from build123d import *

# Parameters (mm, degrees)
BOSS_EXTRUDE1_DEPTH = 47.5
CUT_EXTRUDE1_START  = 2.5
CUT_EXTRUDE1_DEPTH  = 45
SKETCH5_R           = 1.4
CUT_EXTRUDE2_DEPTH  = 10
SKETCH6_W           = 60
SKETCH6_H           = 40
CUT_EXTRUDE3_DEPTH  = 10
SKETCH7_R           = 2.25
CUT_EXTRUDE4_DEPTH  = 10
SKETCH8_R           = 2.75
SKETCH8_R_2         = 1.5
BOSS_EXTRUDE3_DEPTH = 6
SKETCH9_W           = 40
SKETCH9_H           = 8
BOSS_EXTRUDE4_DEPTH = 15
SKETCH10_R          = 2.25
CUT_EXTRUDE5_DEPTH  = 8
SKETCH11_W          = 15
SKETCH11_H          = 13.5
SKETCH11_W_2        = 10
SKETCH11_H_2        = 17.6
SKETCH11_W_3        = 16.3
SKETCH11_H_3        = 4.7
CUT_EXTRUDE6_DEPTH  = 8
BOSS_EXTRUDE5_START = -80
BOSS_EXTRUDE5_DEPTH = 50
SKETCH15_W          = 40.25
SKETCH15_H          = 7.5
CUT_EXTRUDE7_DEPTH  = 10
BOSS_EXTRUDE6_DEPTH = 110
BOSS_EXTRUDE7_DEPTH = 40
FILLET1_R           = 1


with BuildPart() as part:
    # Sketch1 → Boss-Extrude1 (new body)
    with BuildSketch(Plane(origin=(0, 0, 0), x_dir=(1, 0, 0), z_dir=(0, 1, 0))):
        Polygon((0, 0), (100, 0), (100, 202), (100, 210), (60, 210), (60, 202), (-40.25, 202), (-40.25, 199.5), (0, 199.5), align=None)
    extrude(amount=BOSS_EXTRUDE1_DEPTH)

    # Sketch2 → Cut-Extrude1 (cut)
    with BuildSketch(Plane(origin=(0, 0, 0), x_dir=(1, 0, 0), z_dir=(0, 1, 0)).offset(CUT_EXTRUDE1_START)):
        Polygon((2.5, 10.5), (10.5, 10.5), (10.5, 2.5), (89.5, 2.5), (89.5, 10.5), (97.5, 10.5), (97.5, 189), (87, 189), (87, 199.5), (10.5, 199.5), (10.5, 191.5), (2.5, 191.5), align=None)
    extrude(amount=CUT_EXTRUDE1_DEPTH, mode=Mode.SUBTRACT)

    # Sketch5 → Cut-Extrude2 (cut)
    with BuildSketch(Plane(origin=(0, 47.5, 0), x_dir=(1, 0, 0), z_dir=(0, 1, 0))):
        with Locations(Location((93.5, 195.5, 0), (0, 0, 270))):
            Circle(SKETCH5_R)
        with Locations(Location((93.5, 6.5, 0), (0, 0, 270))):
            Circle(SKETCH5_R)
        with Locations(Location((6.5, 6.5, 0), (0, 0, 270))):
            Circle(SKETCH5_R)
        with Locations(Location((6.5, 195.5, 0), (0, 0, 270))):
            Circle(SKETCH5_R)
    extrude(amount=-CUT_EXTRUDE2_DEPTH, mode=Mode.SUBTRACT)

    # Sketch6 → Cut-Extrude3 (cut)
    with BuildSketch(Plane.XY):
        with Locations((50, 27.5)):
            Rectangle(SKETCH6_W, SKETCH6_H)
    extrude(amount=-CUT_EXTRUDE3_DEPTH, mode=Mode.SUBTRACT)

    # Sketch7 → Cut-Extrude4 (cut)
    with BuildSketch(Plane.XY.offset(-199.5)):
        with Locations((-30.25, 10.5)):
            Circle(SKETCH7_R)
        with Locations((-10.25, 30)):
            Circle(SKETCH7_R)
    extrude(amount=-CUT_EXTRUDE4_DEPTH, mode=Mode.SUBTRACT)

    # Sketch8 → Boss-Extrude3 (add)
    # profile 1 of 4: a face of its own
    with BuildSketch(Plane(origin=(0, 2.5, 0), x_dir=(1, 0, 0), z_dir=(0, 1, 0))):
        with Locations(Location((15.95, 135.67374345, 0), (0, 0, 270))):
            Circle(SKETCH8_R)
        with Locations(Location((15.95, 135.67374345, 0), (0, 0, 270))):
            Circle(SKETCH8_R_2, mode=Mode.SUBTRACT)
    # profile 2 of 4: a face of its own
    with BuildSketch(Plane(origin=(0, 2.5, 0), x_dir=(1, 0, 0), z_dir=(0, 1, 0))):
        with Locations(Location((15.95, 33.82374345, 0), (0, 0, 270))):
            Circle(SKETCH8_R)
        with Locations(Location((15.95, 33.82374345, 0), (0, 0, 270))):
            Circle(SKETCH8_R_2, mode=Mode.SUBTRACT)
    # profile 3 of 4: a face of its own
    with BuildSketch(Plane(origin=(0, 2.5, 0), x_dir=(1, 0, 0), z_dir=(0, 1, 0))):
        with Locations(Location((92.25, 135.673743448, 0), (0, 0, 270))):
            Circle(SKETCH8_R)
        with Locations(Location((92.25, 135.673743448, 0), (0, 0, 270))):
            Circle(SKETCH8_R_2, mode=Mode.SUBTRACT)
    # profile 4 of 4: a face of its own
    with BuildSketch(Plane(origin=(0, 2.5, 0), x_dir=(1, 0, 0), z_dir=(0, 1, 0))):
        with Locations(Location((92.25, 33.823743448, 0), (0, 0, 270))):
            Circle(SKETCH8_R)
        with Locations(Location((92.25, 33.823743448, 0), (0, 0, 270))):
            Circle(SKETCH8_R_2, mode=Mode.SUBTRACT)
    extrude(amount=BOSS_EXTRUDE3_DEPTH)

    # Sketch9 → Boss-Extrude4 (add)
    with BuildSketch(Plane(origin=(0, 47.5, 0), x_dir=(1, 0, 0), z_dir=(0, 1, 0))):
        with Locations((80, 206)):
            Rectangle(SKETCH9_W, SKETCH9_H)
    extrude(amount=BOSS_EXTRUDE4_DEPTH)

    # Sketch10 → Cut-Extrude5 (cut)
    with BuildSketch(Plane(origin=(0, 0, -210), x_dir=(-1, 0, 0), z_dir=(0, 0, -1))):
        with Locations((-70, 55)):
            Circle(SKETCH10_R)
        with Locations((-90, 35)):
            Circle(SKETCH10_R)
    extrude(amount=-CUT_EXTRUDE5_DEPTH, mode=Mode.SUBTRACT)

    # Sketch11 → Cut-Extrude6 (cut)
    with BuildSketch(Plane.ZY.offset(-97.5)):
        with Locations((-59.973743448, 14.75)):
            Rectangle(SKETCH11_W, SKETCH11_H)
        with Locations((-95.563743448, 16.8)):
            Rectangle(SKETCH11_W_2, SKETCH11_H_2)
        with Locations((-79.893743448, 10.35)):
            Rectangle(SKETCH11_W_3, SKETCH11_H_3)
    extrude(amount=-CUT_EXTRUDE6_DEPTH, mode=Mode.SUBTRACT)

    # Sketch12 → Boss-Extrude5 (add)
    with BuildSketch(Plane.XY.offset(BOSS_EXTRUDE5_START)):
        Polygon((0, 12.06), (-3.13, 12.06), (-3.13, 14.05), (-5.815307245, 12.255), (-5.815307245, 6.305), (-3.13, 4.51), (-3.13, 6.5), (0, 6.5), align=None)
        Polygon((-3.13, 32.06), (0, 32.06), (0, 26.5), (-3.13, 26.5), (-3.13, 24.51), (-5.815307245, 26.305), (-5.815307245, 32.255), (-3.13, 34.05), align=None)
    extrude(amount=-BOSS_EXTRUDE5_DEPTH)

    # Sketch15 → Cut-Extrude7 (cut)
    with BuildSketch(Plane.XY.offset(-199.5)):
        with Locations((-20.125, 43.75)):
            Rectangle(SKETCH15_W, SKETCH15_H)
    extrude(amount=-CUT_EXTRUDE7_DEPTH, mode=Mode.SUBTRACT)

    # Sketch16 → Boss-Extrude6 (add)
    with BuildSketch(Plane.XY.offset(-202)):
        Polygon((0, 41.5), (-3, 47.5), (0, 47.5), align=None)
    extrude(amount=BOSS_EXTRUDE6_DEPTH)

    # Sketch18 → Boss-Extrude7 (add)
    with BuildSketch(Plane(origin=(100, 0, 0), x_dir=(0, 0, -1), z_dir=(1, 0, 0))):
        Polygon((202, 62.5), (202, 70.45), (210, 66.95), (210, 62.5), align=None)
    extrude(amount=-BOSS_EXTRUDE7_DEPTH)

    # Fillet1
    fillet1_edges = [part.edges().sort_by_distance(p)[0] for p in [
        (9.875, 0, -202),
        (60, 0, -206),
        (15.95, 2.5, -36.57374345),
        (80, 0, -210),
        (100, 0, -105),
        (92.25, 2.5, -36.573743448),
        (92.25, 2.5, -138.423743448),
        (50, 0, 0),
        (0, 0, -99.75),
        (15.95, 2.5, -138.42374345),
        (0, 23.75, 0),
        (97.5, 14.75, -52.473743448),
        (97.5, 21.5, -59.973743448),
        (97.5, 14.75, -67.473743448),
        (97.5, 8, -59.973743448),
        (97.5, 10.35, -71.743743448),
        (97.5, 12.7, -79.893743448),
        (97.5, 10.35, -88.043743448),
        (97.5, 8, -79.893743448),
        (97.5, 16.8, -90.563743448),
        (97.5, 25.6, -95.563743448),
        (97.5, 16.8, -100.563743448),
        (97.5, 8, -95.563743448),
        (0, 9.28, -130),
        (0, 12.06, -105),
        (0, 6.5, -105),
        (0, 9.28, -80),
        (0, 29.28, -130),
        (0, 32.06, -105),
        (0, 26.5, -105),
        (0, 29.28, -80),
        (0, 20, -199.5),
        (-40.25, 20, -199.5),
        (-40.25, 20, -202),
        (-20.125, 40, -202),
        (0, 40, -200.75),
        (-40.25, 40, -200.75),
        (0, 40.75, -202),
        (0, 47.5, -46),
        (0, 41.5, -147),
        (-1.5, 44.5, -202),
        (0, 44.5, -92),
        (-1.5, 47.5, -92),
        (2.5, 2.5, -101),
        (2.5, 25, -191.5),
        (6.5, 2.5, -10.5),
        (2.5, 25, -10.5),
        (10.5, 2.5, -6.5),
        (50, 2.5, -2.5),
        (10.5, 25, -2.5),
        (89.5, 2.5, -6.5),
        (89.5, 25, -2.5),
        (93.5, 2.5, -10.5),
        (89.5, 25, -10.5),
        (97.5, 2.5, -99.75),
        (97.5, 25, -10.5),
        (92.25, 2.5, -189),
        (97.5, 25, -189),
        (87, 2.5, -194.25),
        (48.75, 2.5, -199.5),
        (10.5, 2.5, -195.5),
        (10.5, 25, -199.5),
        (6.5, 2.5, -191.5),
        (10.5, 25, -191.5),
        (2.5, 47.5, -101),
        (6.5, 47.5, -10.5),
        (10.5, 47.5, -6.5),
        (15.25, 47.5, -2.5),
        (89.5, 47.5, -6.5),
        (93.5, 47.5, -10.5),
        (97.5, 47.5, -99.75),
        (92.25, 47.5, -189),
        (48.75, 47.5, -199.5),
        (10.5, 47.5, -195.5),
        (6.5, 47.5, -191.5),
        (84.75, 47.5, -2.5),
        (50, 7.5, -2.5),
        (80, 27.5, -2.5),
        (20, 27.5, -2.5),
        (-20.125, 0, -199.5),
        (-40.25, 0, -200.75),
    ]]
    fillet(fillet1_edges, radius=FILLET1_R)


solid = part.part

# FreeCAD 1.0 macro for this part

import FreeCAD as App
import Part
import Sketcher
from FreeCAD import Vector
Q = App.Units.Quantity


def edges_at(feature, points):
    """Names of the edges that pass closest to the given points."""
    edges = feature.Shape.Edges
    near = lambda p: min(range(len(edges)), key=lambda i: edges[i].distToShape(Part.Vertex(*p))[0])
    return sorted({f"Edge{near(p) + 1}" for p in points})

doc = App.newDocument("Part")
body = doc.addObject("PartDesign::Body", "Body")

sketch1 = doc.addObject("Sketcher::SketchObject", "Sketch")
body.addObject(sketch1)
sketch1.AttachmentSupport = (doc.XZ_Plane, [""])
sketch1.MapMode = "FlatFace"
sketch1.addGeometry(Part.LineSegment(Vector(0, 0, 0), Vector(100, 0, 0)), False)
sketch1.addGeometry(Part.LineSegment(Vector(100, 0, 0), Vector(100, -210, 0)), False)
sketch1.addGeometry(Part.LineSegment(Vector(100, -210, 0), Vector(60, -210, 0)), False)
sketch1.addGeometry(Part.LineSegment(Vector(60, -210, 0), Vector(60, -202, 0)), False)
sketch1.addGeometry(Part.LineSegment(Vector(60, -202, 0), Vector(-40.2, -202, 0)), False)
sketch1.addGeometry(Part.LineSegment(Vector(-40.2, -202, 0), Vector(-40.2, -199.5, 0)), False)
sketch1.addGeometry(Part.LineSegment(Vector(-40.2, -199.5, 0), Vector(0, -199.5, 0)), False)
sketch1.addGeometry(Part.LineSegment(Vector(0, -199.5, 0), Vector(0, 0, 0)), False)
sketch1.addConstraint(Sketcher.Constraint("Coincident", 0, 2, 1, 1))
sketch1.addConstraint(Sketcher.Constraint("Coincident", 1, 2, 2, 1))
sketch1.addConstraint(Sketcher.Constraint("Coincident", 2, 2, 3, 1))
sketch1.addConstraint(Sketcher.Constraint("Coincident", 3, 2, 4, 1))
sketch1.addConstraint(Sketcher.Constraint("Coincident", 4, 2, 5, 1))
sketch1.addConstraint(Sketcher.Constraint("Coincident", 5, 2, 6, 1))
sketch1.addConstraint(Sketcher.Constraint("Coincident", 6, 2, 7, 1))
sketch1.addConstraint(Sketcher.Constraint("Coincident", 7, 2, 0, 1))
sketch1.addConstraint(Sketcher.Constraint("Horizontal", 0))
sketch1.addConstraint(Sketcher.Constraint("Vertical", 1))
sketch1.addConstraint(Sketcher.Constraint("Horizontal", 2))
sketch1.addConstraint(Sketcher.Constraint("Vertical", 3))
sketch1.addConstraint(Sketcher.Constraint("Horizontal", 4))
sketch1.addConstraint(Sketcher.Constraint("Vertical", 5))
sketch1.addConstraint(Sketcher.Constraint("Horizontal", 6))
sketch1.addConstraint(Sketcher.Constraint("Vertical", 7))
sketch1.addConstraint(Sketcher.Constraint("Coincident", 7, 2, -1, 1))
sketch1.addConstraint(Sketcher.Constraint("DistanceX", 0, 1, 0, 2, Q("100 mm")))
sketch1.addConstraint(Sketcher.Constraint("DistanceX", 2, 2, 2, 1, Q("40 mm")))
sketch1.addConstraint(Sketcher.Constraint("DistanceY", 1, 2, 1, 1, Q("210 mm")))
sketch1.addConstraint(Sketcher.Constraint("DistanceY", 3, 1, 3, 2, Q("8 mm")))
sketch1.addConstraint(Sketcher.Constraint("DistanceY", 5, 1, 5, 2, Q("2.5 mm")))
sketch1.addConstraint(Sketcher.Constraint("DistanceX", 4, 2, 4, 1, Q("100.25 mm")))
pad1 = doc.addObject("PartDesign::Pad", "Pad")
body.addObject(pad1)
pad1.Profile = sketch1
pad1.Length = 47.5
pad1.Reversed = True

sketch2 = doc.addObject("Sketcher::SketchObject", "Sketch001")
body.addObject(sketch2)
sketch2.AttachmentSupport = (doc.XZ_Plane, [""])
sketch2.MapMode = "FlatFace"
sketch2.AttachmentOffset = App.Placement(Vector(0, 0, -2.5), App.Rotation())
sketch2.addGeometry(Part.LineSegment(Vector(2, -10, 0), Vector(10, -10, 0)), False)
sketch2.addGeometry(Part.LineSegment(Vector(10, -10, 0), Vector(10, -2, 0)), False)
sketch2.addGeometry(Part.LineSegment(Vector(10, -2, 0), Vector(90, -2, 0)), False)
sketch2.addGeometry(Part.LineSegment(Vector(90, -2, 0), Vector(90, -10, 0)), False)
sketch2.addGeometry(Part.LineSegment(Vector(90, -10, 0), Vector(98, -10, 0)), False)
sketch2.addGeometry(Part.LineSegment(Vector(98, -10, 0), Vector(98, -189, 0)), False)
sketch2.addGeometry(Part.LineSegment(Vector(98, -189, 0), Vector(87, -189, 0)), False)
sketch2.addGeometry(Part.LineSegment(Vector(87, -189, 0), Vector(87, -200, 0)), False)
sketch2.addGeometry(Part.LineSegment(Vector(87, -200, 0), Vector(10, -200, 0)), False)
sketch2.addGeometry(Part.LineSegment(Vector(10, -200, 0), Vector(10, -192, 0)), False)
sketch2.addGeometry(Part.LineSegment(Vector(10, -192, 0), Vector(2, -192, 0)), False)
sketch2.addGeometry(Part.LineSegment(Vector(2, -192, 0), Vector(2, -10, 0)), False)
sketch2.addConstraint(Sketcher.Constraint("Coincident", 0, 2, 1, 1))
sketch2.addConstraint(Sketcher.Constraint("Coincident", 1, 2, 2, 1))
sketch2.addConstraint(Sketcher.Constraint("Coincident", 2, 2, 3, 1))
sketch2.addConstraint(Sketcher.Constraint("Coincident", 3, 2, 4, 1))
sketch2.addConstraint(Sketcher.Constraint("Coincident", 4, 2, 5, 1))
sketch2.addConstraint(Sketcher.Constraint("Coincident", 5, 2, 6, 1))
sketch2.addConstraint(Sketcher.Constraint("Coincident", 6, 2, 7, 1))
sketch2.addConstraint(Sketcher.Constraint("Coincident", 7, 2, 8, 1))
sketch2.addConstraint(Sketcher.Constraint("Coincident", 8, 2, 9, 1))
sketch2.addConstraint(Sketcher.Constraint("Coincident", 9, 2, 10, 1))
sketch2.addConstraint(Sketcher.Constraint("Coincident", 10, 2, 11, 1))
sketch2.addConstraint(Sketcher.Constraint("Coincident", 11, 2, 0, 1))
sketch2.addConstraint(Sketcher.Constraint("Horizontal", 0))
sketch2.addConstraint(Sketcher.Constraint("Vertical", 1))
sketch2.addConstraint(Sketcher.Constraint("Horizontal", 2))
sketch2.addConstraint(Sketcher.Constraint("Vertical", 3))
sketch2.addConstraint(Sketcher.Constraint("Horizontal", 4))
sketch2.addConstraint(Sketcher.Constraint("Vertical", 5))
sketch2.addConstraint(Sketcher.Constraint("Horizontal", 6))
sketch2.addConstraint(Sketcher.Constraint("Vertical", 7))
sketch2.addConstraint(Sketcher.Constraint("Horizontal", 8))
sketch2.addConstraint(Sketcher.Constraint("Vertical", 9))
sketch2.addConstraint(Sketcher.Constraint("Horizontal", 10))
sketch2.addConstraint(Sketcher.Constraint("Vertical", 11))
sketch2.addConstraint(Sketcher.Constraint("Horizontal", 0, 2, 3, 2))
sketch2.addConstraint(Sketcher.Constraint("Vertical", 1, 2, 8, 2))
sketch2.addConstraint(Sketcher.Constraint("Equal", 0, 4))
sketch2.addConstraint(Sketcher.Constraint("Equal", 10, 1))
sketch2.addConstraint(Sketcher.Constraint("Equal", 6, 7))
sketch2.addConstraint(Sketcher.Constraint("Equal", 3, 9))
sketch2.addConstraint(Sketcher.Constraint("DistanceX", 0, 1, 0, 2, Q("8 mm")))
sketch2.addConstraint(Sketcher.Constraint("DistanceX", 2, 1, 2, 2, Q("79 mm")))
sketch2.addConstraint(Sketcher.Constraint("DistanceY", 11, 1, 11, 2, Q("181 mm")))
sketch2.addConstraint(Sketcher.Constraint("DistanceX", 6, 2, 6, 1, Q("10.5 mm")))
sketch2.addConstraint(Sketcher.Constraint("DistanceY", 5, 2, -1, 1, Q("189 mm")))
sketch2.addConstraint(Sketcher.Constraint("DistanceX", -1, 1, 6, 2, Q("87 mm")))
pocket1 = doc.addObject("PartDesign::Pocket", "Pocket")
body.addObject(pocket1)
pocket1.Profile = sketch2
pocket1.Length = 45

sketch3 = doc.addObject("Sketcher::SketchObject", "Sketch002")
body.addObject(sketch3)
sketch3.AttachmentSupport = (doc.XZ_Plane, [""])
sketch3.MapMode = "FlatFace"
sketch3.AttachmentOffset = App.Placement(Vector(0, 0, -47.5), App.Rotation())
sketch3.addGeometry(Part.Circle(Vector(93.5, -195.5, 0), Vector(0, 0, 1), 1.4), False)
sketch3.addGeometry(Part.Circle(Vector(93.5, -6.5, 0), Vector(0, 0, 1), 1.4), False)
sketch3.addGeometry(Part.Circle(Vector(6.5, -6.5, 0), Vector(0, 0, 1), 1.4), False)
sketch3.addGeometry(Part.Circle(Vector(6.5, -195.5, 0), Vector(0, 0, 1), 1.4), False)
sketch3.addConstraint(Sketcher.Constraint("Equal", 0, 1))
sketch3.addConstraint(Sketcher.Constraint("Equal", 1, 2))
sketch3.addConstraint(Sketcher.Constraint("Equal", 2, 3))
sketch3.addConstraint(Sketcher.Constraint("Horizontal", 1, 3, 2, 3))
sketch3.addConstraint(Sketcher.Constraint("Horizontal", 0, 3, 3, 3))
sketch3.addConstraint(Sketcher.Constraint("Vertical", 0, 3, 1, 3))
sketch3.addConstraint(Sketcher.Constraint("Vertical", 2, 3, 3, 3))
sketch3.addConstraint(Sketcher.Constraint("Diameter", 0, Q("2.8 mm")))
sketch3.addConstraint(Sketcher.Constraint("DistanceY", 0, 3, 1, 3, Q("189 mm")))
sketch3.addConstraint(Sketcher.Constraint("DistanceX", 2, 3, 1, 3, Q("87 mm")))
sketch3.addConstraint(Sketcher.Constraint("DistanceX", -1, 1, 0, 3, Q("93.5 mm")))
sketch3.addConstraint(Sketcher.Constraint("DistanceY", 0, 3, -1, 1, Q("195.5 mm")))
pocket2 = doc.addObject("PartDesign::Pocket", "Pocket001")
body.addObject(pocket2)
pocket2.Profile = sketch3
pocket2.Length = 10
pocket2.Reversed = True

sketch4 = doc.addObject("Sketcher::SketchObject", "Sketch003")
body.addObject(sketch4)
sketch4.AttachmentSupport = (doc.XY_Plane, [""])
sketch4.MapMode = "FlatFace"
sketch4.addGeometry(Part.LineSegment(Vector(20, 48, 0), Vector(20, 8, 0)), False)
sketch4.addGeometry(Part.LineSegment(Vector(20, 8, 0), Vector(80, 8, 0)), False)
sketch4.addGeometry(Part.LineSegment(Vector(80, 8, 0), Vector(80, 48, 0)), False)
sketch4.addGeometry(Part.LineSegment(Vector(80, 48, 0), Vector(20, 48, 0)), False)
sketch4.addConstraint(Sketcher.Constraint("Coincident", 0, 2, 1, 1))
sketch4.addConstraint(Sketcher.Constraint("Coincident", 1, 2, 2, 1))
sketch4.addConstraint(Sketcher.Constraint("Coincident", 2, 2, 3, 1))
sketch4.addConstraint(Sketcher.Constraint("Coincident", 3, 2, 0, 1))
sketch4.addConstraint(Sketcher.Constraint("Vertical", 0))
sketch4.addConstraint(Sketcher.Constraint("Horizontal", 1))
sketch4.addConstraint(Sketcher.Constraint("Vertical", 2))
sketch4.addConstraint(Sketcher.Constraint("Horizontal", 3))
sketch4.addConstraint(Sketcher.Constraint("DistanceX", 1, 1, 1, 2, Q("60 mm")))
sketch4.addConstraint(Sketcher.Constraint("DistanceY", 0, 2, 0, 1, Q("40 mm")))
sketch4.addConstraint(Sketcher.Constraint("DistanceX", -1, 1, 0, 2, Q("20 mm")))
sketch4.addConstraint(Sketcher.Constraint("DistanceY", -1, 1, 0, 2, Q("7.5 mm")))
pocket3 = doc.addObject("PartDesign::Pocket", "Pocket002")
body.addObject(pocket3)
pocket3.Profile = sketch4
pocket3.Length = 10

sketch5 = doc.addObject("Sketcher::SketchObject", "Sketch004")
body.addObject(sketch5)
sketch5.AttachmentSupport = (doc.XY_Plane, [""])
sketch5.MapMode = "FlatFace"
sketch5.AttachmentOffset = App.Placement(Vector(0, 0, -199.5), App.Rotation())
sketch5.addGeometry(Part.Circle(Vector(-30.2, 10.5, 0), Vector(0, 0, 1), 2.2), False)
sketch5.addGeometry(Part.Circle(Vector(-10.2, 30, 0), Vector(0, 0, 1), 2.2), False)
sketch5.addConstraint(Sketcher.Constraint("Equal", 0, 1))
sketch5.addConstraint(Sketcher.Constraint("Diameter", 0, Q("4.5 mm")))
sketch5.addConstraint(Sketcher.Constraint("DistanceY", -1, 1, 1, 3, Q("30 mm")))
sketch5.addConstraint(Sketcher.Constraint("DistanceX", 0, 3, 1, 3, Q("20 mm")))
sketch5.addConstraint(Sketcher.Constraint("DistanceY", -1, 1, 0, 3, Q("10.5 mm")))
sketch5.addConstraint(Sketcher.Constraint("DistanceX", 0, 3, -1, 1, Q("30.25 mm")))
pocket4 = doc.addObject("PartDesign::Pocket", "Pocket003")
body.addObject(pocket4)
pocket4.Profile = sketch5
pocket4.Length = 10

sketch6 = doc.addObject("Sketcher::SketchObject", "Sketch005")
body.addObject(sketch6)
sketch6.AttachmentSupport = (doc.XZ_Plane, [""])
sketch6.MapMode = "FlatFace"
sketch6.AttachmentOffset = App.Placement(Vector(0, 0, -2.5), App.Rotation())
sketch6.addGeometry(Part.Circle(Vector(15.9, -135.7, 0), Vector(0, 0, 1), 2.8), False)
sketch6.addGeometry(Part.Circle(Vector(15.9, -135.7, 0), Vector(0, 0, 1), 1.5), False)
sketch6.addGeometry(Part.Circle(Vector(15.9, -33.8, 0), Vector(0, 0, 1), 2.8), False)
sketch6.addGeometry(Part.Circle(Vector(15.9, -33.8, 0), Vector(0, 0, 1), 1.5), False)
sketch6.addGeometry(Part.Circle(Vector(92.2, -135.7, 0), Vector(0, 0, 1), 2.8), False)
sketch6.addGeometry(Part.Circle(Vector(92.2, -135.7, 0), Vector(0, 0, 1), 1.5), False)
sketch6.addGeometry(Part.Circle(Vector(92.2, -33.8, 0), Vector(0, 0, 1), 2.8), False)
sketch6.addGeometry(Part.Circle(Vector(92.2, -33.8, 0), Vector(0, 0, 1), 1.5), False)
sketch6.addConstraint(Sketcher.Constraint("Coincident", 1, 3, 0, 3))
sketch6.addConstraint(Sketcher.Constraint("Coincident", 3, 3, 2, 3))
sketch6.addConstraint(Sketcher.Constraint("Coincident", 5, 3, 4, 3))
sketch6.addConstraint(Sketcher.Constraint("Coincident", 7, 3, 6, 3))
sketch6.addConstraint(Sketcher.Constraint("Equal", 0, 2))
sketch6.addConstraint(Sketcher.Constraint("Equal", 1, 3))
sketch6.addConstraint(Sketcher.Constraint("Equal", 2, 4))
sketch6.addConstraint(Sketcher.Constraint("Equal", 3, 5))
sketch6.addConstraint(Sketcher.Constraint("Equal", 4, 6))
sketch6.addConstraint(Sketcher.Constraint("Equal", 5, 7))
sketch6.addConstraint(Sketcher.Constraint("Horizontal", 1, 3, 4, 3))
sketch6.addConstraint(Sketcher.Constraint("Horizontal", 3, 3, 6, 3))
sketch6.addConstraint(Sketcher.Constraint("Vertical", 1, 3, 2, 3))
sketch6.addConstraint(Sketcher.Constraint("Vertical", 5, 3, 6, 3))
sketch6.addConstraint(Sketcher.Constraint("Diameter", 1, Q("3 mm")))
sketch6.addConstraint(Sketcher.Constraint("Diameter", 0, Q("5.5 mm")))
sketch6.addConstraint(Sketcher.Constraint("DistanceX", 0, 3, 4, 3, Q("76.3 mm")))
sketch6.addConstraint(Sketcher.Constraint("DistanceX", -1, 1, 0, 3, Q("15.95 mm")))
sketch6.addConstraint(Sketcher.Constraint("DistanceY", 0, 3, 2, 3, Q("101.85 mm")))
sketch6.addConstraint(Sketcher.Constraint("DistanceY", 0, 3, -1, 1, Q("135.673743 mm")))
pad2 = doc.addObject("PartDesign::Pad", "Pad001")
body.addObject(pad2)
pad2.Profile = sketch6
pad2.Length = 6
pad2.Reversed = True

sketch7 = doc.addObject("Sketcher::SketchObject", "Sketch006")
body.addObject(sketch7)
sketch7.AttachmentSupport = (doc.XZ_Plane, [""])
sketch7.MapMode = "FlatFace"
sketch7.AttachmentOffset = App.Placement(Vector(0, 0, -47.5), App.Rotation())
sketch7.addGeometry(Part.LineSegment(Vector(60, -210, 0), Vector(60, -202, 0)), False)
sketch7.addGeometry(Part.LineSegment(Vector(60, -202, 0), Vector(100, -202, 0)), False)
sketch7.addGeometry(Part.LineSegment(Vector(100, -202, 0), Vector(100, -210, 0)), False)
sketch7.addGeometry(Part.LineSegment(Vector(100, -210, 0), Vector(60, -210, 0)), False)
sketch7.addConstraint(Sketcher.Constraint("Coincident", 0, 2, 1, 1))
sketch7.addConstraint(Sketcher.Constraint("Coincident", 1, 2, 2, 1))
sketch7.addConstraint(Sketcher.Constraint("Coincident", 2, 2, 3, 1))
sketch7.addConstraint(Sketcher.Constraint("Coincident", 3, 2, 0, 1))
sketch7.addConstraint(Sketcher.Constraint("Vertical", 0))
sketch7.addConstraint(Sketcher.Constraint("Horizontal", 1))
sketch7.addConstraint(Sketcher.Constraint("Vertical", 2))
sketch7.addConstraint(Sketcher.Constraint("Horizontal", 3))
sketch7.addConstraint(Sketcher.Constraint("DistanceX", 1, 1, 1, 2, Q("40 mm")))
sketch7.addConstraint(Sketcher.Constraint("DistanceY", 0, 1, 0, 2, Q("8 mm")))
sketch7.addConstraint(Sketcher.Constraint("DistanceX", -1, 1, 0, 2, Q("60 mm")))
sketch7.addConstraint(Sketcher.Constraint("DistanceY", 0, 2, -1, 1, Q("202 mm")))
pad3 = doc.addObject("PartDesign::Pad", "Pad002")
body.addObject(pad3)
pad3.Profile = sketch7
pad3.Length = 15
pad3.Reversed = True

sketch8 = doc.addObject("Sketcher::SketchObject", "Sketch007")
body.addObject(sketch8)
sketch8.AttachmentSupport = (doc.XY_Plane, [""])
sketch8.MapMode = "FlatFace"
sketch8.AttachmentOffset = App.Placement(Vector(0, 0, -210), App.Rotation())
sketch8.addGeometry(Part.Circle(Vector(70, 55, 0), Vector(0, 0, 1), 2.2), False)
sketch8.addGeometry(Part.Circle(Vector(90, 35, 0), Vector(0, 0, 1), 2.2), False)
sketch8.addConstraint(Sketcher.Constraint("Equal", 0, 1))
sketch8.addConstraint(Sketcher.Constraint("Diameter", 0, Q("4.5 mm")))
sketch8.addConstraint(Sketcher.Constraint("DistanceX", -1, 1, 0, 3, Q("70 mm")))
sketch8.addConstraint(Sketcher.Constraint("DistanceY", -1, 1, 0, 3, Q("55 mm")))
sketch8.addConstraint(Sketcher.Constraint("DistanceX", -1, 1, 1, 3, Q("90 mm")))
sketch8.addConstraint(Sketcher.Constraint("DistanceY", -1, 1, 1, 3, Q("35 mm")))
pocket5 = doc.addObject("PartDesign::Pocket", "Pocket004")
body.addObject(pocket5)
pocket5.Profile = sketch8
pocket5.Length = 8
pocket5.Reversed = True

sketch9 = doc.addObject("Sketcher::SketchObject", "Sketch008")
body.addObject(sketch9)
sketch9.AttachmentSupport = (doc.YZ_Plane, [""])
sketch9.MapMode = "FlatFace"
sketch9.AttachmentOffset = App.Placement(Vector(0, 0, 97.5), App.Rotation())
sketch9.addGeometry(Part.LineSegment(Vector(21.5, -67.5, 0), Vector(8, -67.5, 0)), False)
sketch9.addGeometry(Part.LineSegment(Vector(8, -67.5, 0), Vector(8, -52.5, 0)), False)
sketch9.addGeometry(Part.LineSegment(Vector(8, -52.5, 0), Vector(21.5, -52.5, 0)), False)
sketch9.addGeometry(Part.LineSegment(Vector(21.5, -52.5, 0), Vector(21.5, -67.5, 0)), False)
sketch9.addGeometry(Part.LineSegment(Vector(25.6, -100.6, 0), Vector(8, -100.6, 0)), False)
sketch9.addGeometry(Part.LineSegment(Vector(8, -100.6, 0), Vector(8, -90.6, 0)), False)
sketch9.addGeometry(Part.LineSegment(Vector(8, -90.6, 0), Vector(25.6, -90.6, 0)), False)
sketch9.addGeometry(Part.LineSegment(Vector(25.6, -90.6, 0), Vector(25.6, -100.6, 0)), False)
sketch9.addGeometry(Part.LineSegment(Vector(12.7, -88, 0), Vector(8, -88, 0)), False)
sketch9.addGeometry(Part.LineSegment(Vector(8, -88, 0), Vector(8, -71.7, 0)), False)
sketch9.addGeometry(Part.LineSegment(Vector(8, -71.7, 0), Vector(12.7, -71.7, 0)), False)
sketch9.addGeometry(Part.LineSegment(Vector(12.7, -71.7, 0), Vector(12.7, -88, 0)), False)
sketch9.addConstraint(Sketcher.Constraint("Coincident", 0, 2, 1, 1))
sketch9.addConstraint(Sketcher.Constraint("Coincident", 1, 2, 2, 1))
sketch9.addConstraint(Sketcher.Constraint("Coincident", 2, 2, 3, 1))
sketch9.addConstraint(Sketcher.Constraint("Coincident", 3, 2, 0, 1))
sketch9.addConstraint(Sketcher.Constraint("Coincident", 4, 2, 5, 1))
sketch9.addConstraint(Sketcher.Constraint("Coincident", 5, 2, 6, 1))
sketch9.addConstraint(Sketcher.Constraint("Coincident", 6, 2, 7, 1))
sketch9.addConstraint(Sketcher.Constraint("Coincident", 7, 2, 4, 1))
sketch9.addConstraint(Sketcher.Constraint("Coincident", 8, 2, 9, 1))
sketch9.addConstraint(Sketcher.Constraint("Coincident", 9, 2, 10, 1))
sketch9.addConstraint(Sketcher.Constraint("Coincident", 10, 2, 11, 1))
sketch9.addConstraint(Sketcher.Constraint("Coincident", 11, 2, 8, 1))
sketch9.addConstraint(Sketcher.Constraint("Horizontal", 0))
sketch9.addConstraint(Sketcher.Constraint("Vertical", 1))
sketch9.addConstraint(Sketcher.Constraint("Horizontal", 2))
sketch9.addConstraint(Sketcher.Constraint("Vertical", 3))
sketch9.addConstraint(Sketcher.Constraint("Horizontal", 4))
sketch9.addConstraint(Sketcher.Constraint("Vertical", 5))
sketch9.addConstraint(Sketcher.Constraint("Horizontal", 6))
sketch9.addConstraint(Sketcher.Constraint("Vertical", 7))
sketch9.addConstraint(Sketcher.Constraint("Horizontal", 8))
sketch9.addConstraint(Sketcher.Constraint("Vertical", 9))
sketch9.addConstraint(Sketcher.Constraint("Horizontal", 10))
sketch9.addConstraint(Sketcher.Constraint("Vertical", 11))
sketch9.addConstraint(Sketcher.Constraint("Vertical", 1, 2, 4, 2))
sketch9.addConstraint(Sketcher.Constraint("Vertical", 5, 2, 8, 2))
sketch9.addConstraint(Sketcher.Constraint("DistanceY", 1, 1, 1, 2, Q("15 mm")))
sketch9.addConstraint(Sketcher.Constraint("DistanceY", 5, 1, 5, 2, Q("10 mm")))
sketch9.addConstraint(Sketcher.Constraint("DistanceX", 0, 2, 0, 1, Q("13.5 mm")))
sketch9.addConstraint(Sketcher.Constraint("DistanceX", 4, 2, 4, 1, Q("17.6 mm")))
sketch9.addConstraint(Sketcher.Constraint("DistanceX", 8, 2, 8, 1, Q("4.7 mm")))
sketch9.addConstraint(Sketcher.Constraint("DistanceY", 9, 1, 9, 2, Q("16.3 mm")))
sketch9.addConstraint(Sketcher.Constraint("DistanceX", -1, 1, 0, 2, Q("8 mm")))
sketch9.addConstraint(Sketcher.Constraint("DistanceY", 4, 2, 0, 2, Q("33.09 mm")))
sketch9.addConstraint(Sketcher.Constraint("DistanceY", 5, 2, 8, 2, Q("2.52 mm")))
sketch9.addConstraint(Sketcher.Constraint("DistanceY", 0, 2, -1, 1, Q("67.473743 mm")))
pocket6 = doc.addObject("PartDesign::Pocket", "Pocket005")
body.addObject(pocket6)
pocket6.Profile = sketch9
pocket6.Length = 8
pocket6.Reversed = True

sketch10 = doc.addObject("Sketcher::SketchObject", "Sketch009")
body.addObject(sketch10)
sketch10.AttachmentSupport = (doc.XY_Plane, [""])
sketch10.MapMode = "FlatFace"
sketch10.AttachmentOffset = App.Placement(Vector(0, 0, -80), App.Rotation())
sketch10.addGeometry(Part.LineSegment(Vector(0, 12.1, 0), Vector(-3.1, 12.1, 0)), False)
sketch10.addGeometry(Part.LineSegment(Vector(-3.1, 12.1, 0), Vector(-3.1, 14.1, 0)), False)
sketch10.addGeometry(Part.LineSegment(Vector(-3.1, 14.1, 0), Vector(-5.8, 12.3, 0)), False)
sketch10.addGeometry(Part.LineSegment(Vector(-5.8, 12.3, 0), Vector(-5.8, 6.3, 0)), False)
sketch10.addGeometry(Part.LineSegment(Vector(-5.8, 6.3, 0), Vector(-3.1, 4.5, 0)), False)
sketch10.addGeometry(Part.LineSegment(Vector(-3.1, 4.5, 0), Vector(-3.1, 6.5, 0)), False)
sketch10.addGeometry(Part.LineSegment(Vector(-3.1, 6.5, 0), Vector(0, 6.5, 0)), False)
sketch10.addGeometry(Part.LineSegment(Vector(0, 6.5, 0), Vector(0, 12.1, 0)), False)
sketch10.addGeometry(Part.LineSegment(Vector(0, 32.1, 0), Vector(-3.1, 32.1, 0)), False)
sketch10.addGeometry(Part.LineSegment(Vector(-3.1, 32.1, 0), Vector(-3.1, 34, 0)), False)
sketch10.addGeometry(Part.LineSegment(Vector(-3.1, 34, 0), Vector(-5.8, 32.3, 0)), False)
sketch10.addGeometry(Part.LineSegment(Vector(-5.8, 32.3, 0), Vector(-5.8, 26.3, 0)), False)
sketch10.addGeometry(Part.LineSegment(Vector(-5.8, 26.3, 0), Vector(-3.1, 24.5, 0)), False)
sketch10.addGeometry(Part.LineSegment(Vector(-3.1, 24.5, 0), Vector(-3.1, 26.5, 0)), False)
sketch10.addGeometry(Part.LineSegment(Vector(-3.1, 26.5, 0), Vector(0, 26.5, 0)), False)
sketch10.addGeometry(Part.LineSegment(Vector(0, 26.5, 0), Vector(0, 32.1, 0)), False)
sketch10.addConstraint(Sketcher.Constraint("Coincident", 0, 2, 1, 1))
sketch10.addConstraint(Sketcher.Constraint("Coincident", 1, 2, 2, 1))
sketch10.addConstraint(Sketcher.Constraint("Coincident", 2, 2, 3, 1))
sketch10.addConstraint(Sketcher.Constraint("Coincident", 3, 2, 4, 1))
sketch10.addConstraint(Sketcher.Constraint("Coincident", 4, 2, 5, 1))
sketch10.addConstraint(Sketcher.Constraint("Coincident", 5, 2, 6, 1))
sketch10.addConstraint(Sketcher.Constraint("Coincident", 6, 2, 7, 1))
sketch10.addConstraint(Sketcher.Constraint("Coincident", 7, 2, 0, 1))
sketch10.addConstraint(Sketcher.Constraint("Coincident", 8, 2, 9, 1))
sketch10.addConstraint(Sketcher.Constraint("Coincident", 9, 2, 10, 1))
sketch10.addConstraint(Sketcher.Constraint("Coincident", 10, 2, 11, 1))
sketch10.addConstraint(Sketcher.Constraint("Coincident", 11, 2, 12, 1))
sketch10.addConstraint(Sketcher.Constraint("Coincident", 12, 2, 13, 1))
sketch10.addConstraint(Sketcher.Constraint("Coincident", 13, 2, 14, 1))
sketch10.addConstraint(Sketcher.Constraint("Coincident", 14, 2, 15, 1))
sketch10.addConstraint(Sketcher.Constraint("Coincident", 15, 2, 8, 1))
sketch10.addConstraint(Sketcher.Constraint("Horizontal", 0))
sketch10.addConstraint(Sketcher.Constraint("Vertical", 1))
sketch10.addConstraint(Sketcher.Constraint("Vertical", 3))
sketch10.addConstraint(Sketcher.Constraint("Vertical", 5))
sketch10.addConstraint(Sketcher.Constraint("Horizontal", 6))
sketch10.addConstraint(Sketcher.Constraint("Vertical", 7))
sketch10.addConstraint(Sketcher.Constraint("Horizontal", 8))
sketch10.addConstraint(Sketcher.Constraint("Vertical", 9))
sketch10.addConstraint(Sketcher.Constraint("Vertical", 11))
sketch10.addConstraint(Sketcher.Constraint("Vertical", 13))
sketch10.addConstraint(Sketcher.Constraint("Horizontal", 14))
sketch10.addConstraint(Sketcher.Constraint("Vertical", 15))
sketch10.addConstraint(Sketcher.Constraint("PointOnObject", 6, 2, -2))
sketch10.addConstraint(Sketcher.Constraint("PointOnObject", 14, 2, -2))
sketch10.addConstraint(Sketcher.Constraint("Parallel", 2, 10))
sketch10.addConstraint(Sketcher.Constraint("Parallel", 4, 12))
sketch10.addConstraint(Sketcher.Constraint("Vertical", 1, 2, 4, 2))
sketch10.addConstraint(Sketcher.Constraint("Vertical", 5, 2, 8, 2))
sketch10.addConstraint(Sketcher.Constraint("Vertical", 3, 2, 10, 2))
sketch10.addConstraint(Sketcher.Constraint("Vertical", 9, 2, 12, 2))
sketch10.addConstraint(Sketcher.Constraint("Equal", 1, 5))
sketch10.addConstraint(Sketcher.Constraint("Equal", 5, 9))
sketch10.addConstraint(Sketcher.Constraint("Equal", 3, 11))
sketch10.addConstraint(Sketcher.Constraint("Equal", 9, 13))
sketch10.addConstraint(Sketcher.Constraint("Equal", 2, 4))
sketch10.addConstraint(Sketcher.Constraint("DistanceY", 0, 2, 8, 2, Q("20 mm")))
sketch10.addConstraint(Sketcher.Constraint("DistanceX", 0, 2, 0, 1, Q("3.13 mm")))
sketch10.addConstraint(Sketcher.Constraint("DistanceY", 1, 1, 1, 2, Q("1.99 mm")))
sketch10.addConstraint(Sketcher.Constraint("DistanceY", 3, 2, 3, 1, Q("5.95 mm")))
sketch10.addConstraint(Sketcher.Constraint("DistanceY", 7, 1, 7, 2, Q("5.56 mm")))
sketch10.addConstraint(Sketcher.Constraint("DistanceY", -1, 1, 5, 2, Q("6.5 mm")))
sketch10.addConstraint(Sketcher.Constraint("Distance", 2, Q("3.23 mm")))
pad4 = doc.addObject("PartDesign::Pad", "Pad003")
body.addObject(pad4)
pad4.Profile = sketch10
pad4.Length = 50
pad4.Reversed = True

sketch11 = doc.addObject("Sketcher::SketchObject", "Sketch010")
body.addObject(sketch11)
sketch11.AttachmentSupport = (doc.XY_Plane, [""])
sketch11.MapMode = "FlatFace"
sketch11.AttachmentOffset = App.Placement(Vector(0, 0, -199.5), App.Rotation())
sketch11.addGeometry(Part.LineSegment(Vector(-40, 48, 0), Vector(-40, 40, 0)), False)
sketch11.addGeometry(Part.LineSegment(Vector(-40, 40, 0), Vector(0, 40, 0)), False)
sketch11.addGeometry(Part.LineSegment(Vector(0, 40, 0), Vector(0, 48, 0)), False)
sketch11.addGeometry(Part.LineSegment(Vector(0, 48, 0), Vector(-40, 48, 0)), False)
sketch11.addConstraint(Sketcher.Constraint("Coincident", 0, 2, 1, 1))
sketch11.addConstraint(Sketcher.Constraint("Coincident", 1, 2, 2, 1))
sketch11.addConstraint(Sketcher.Constraint("Coincident", 2, 2, 3, 1))
sketch11.addConstraint(Sketcher.Constraint("Coincident", 3, 2, 0, 1))
sketch11.addConstraint(Sketcher.Constraint("Vertical", 0))
sketch11.addConstraint(Sketcher.Constraint("Horizontal", 1))
sketch11.addConstraint(Sketcher.Constraint("Vertical", 2))
sketch11.addConstraint(Sketcher.Constraint("Horizontal", 3))
sketch11.addConstraint(Sketcher.Constraint("PointOnObject", 1, 2, -2))
sketch11.addConstraint(Sketcher.Constraint("DistanceY", 0, 2, 0, 1, Q("7.5 mm")))
sketch11.addConstraint(Sketcher.Constraint("DistanceY", -1, 1, 0, 2, Q("40 mm")))
sketch11.addConstraint(Sketcher.Constraint("DistanceX", 1, 1, 1, 2, Q("40.25 mm")))
pocket7 = doc.addObject("PartDesign::Pocket", "Pocket006")
body.addObject(pocket7)
pocket7.Profile = sketch11
pocket7.Length = 10

sketch12 = doc.addObject("Sketcher::SketchObject", "Sketch011")
body.addObject(sketch12)
sketch12.AttachmentSupport = (doc.XY_Plane, [""])
sketch12.MapMode = "FlatFace"
sketch12.AttachmentOffset = App.Placement(Vector(0, 0, -202), App.Rotation())
sketch12.addGeometry(Part.LineSegment(Vector(-3, 47.5, 0), Vector(0, 41.5, 0)), False)
sketch12.addGeometry(Part.LineSegment(Vector(0, 41.5, 0), Vector(0, 47.5, 0)), False)
sketch12.addGeometry(Part.LineSegment(Vector(0, 47.5, 0), Vector(-3, 47.5, 0)), False)
sketch12.addConstraint(Sketcher.Constraint("Coincident", 0, 2, 1, 1))
sketch12.addConstraint(Sketcher.Constraint("Coincident", 1, 2, 2, 1))
sketch12.addConstraint(Sketcher.Constraint("Coincident", 2, 2, 0, 1))
sketch12.addConstraint(Sketcher.Constraint("Vertical", 1))
sketch12.addConstraint(Sketcher.Constraint("Horizontal", 2))
sketch12.addConstraint(Sketcher.Constraint("PointOnObject", 0, 2, -2))
sketch12.addConstraint(Sketcher.Constraint("DistanceX", 2, 2, 2, 1, Q("3 mm")))
sketch12.addConstraint(Sketcher.Constraint("DistanceY", 1, 1, 1, 2, Q("6 mm")))
sketch12.addConstraint(Sketcher.Constraint("DistanceY", -1, 1, 0, 2, Q("41.5 mm")))
pad5 = doc.addObject("PartDesign::Pad", "Pad004")
body.addObject(pad5)
pad5.Profile = sketch12
pad5.Length = 110

sketch13 = doc.addObject("Sketcher::SketchObject", "Sketch012")
body.addObject(sketch13)
sketch13.AttachmentSupport = (doc.YZ_Plane, [""])
sketch13.MapMode = "FlatFace"
sketch13.AttachmentOffset = App.Placement(Vector(0, 0, 100), App.Rotation())
sketch13.addGeometry(Part.LineSegment(Vector(70.5, -202, 0), Vector(62.5, -202, 0)), False)
sketch13.addGeometry(Part.LineSegment(Vector(62.5, -202, 0), Vector(62.5, -210, 0)), False)
sketch13.addGeometry(Part.LineSegment(Vector(62.5, -210, 0), Vector(67, -210, 0)), False)
sketch13.addGeometry(Part.LineSegment(Vector(67, -210, 0), Vector(70.5, -202, 0)), False)
sketch13.addConstraint(Sketcher.Constraint("Coincident", 0, 2, 1, 1))
sketch13.addConstraint(Sketcher.Constraint("Coincident", 1, 2, 2, 1))
sketch13.addConstraint(Sketcher.Constraint("Coincident", 2, 2, 3, 1))
sketch13.addConstraint(Sketcher.Constraint("Coincident", 3, 2, 0, 1))
sketch13.addConstraint(Sketcher.Constraint("Horizontal", 0))
sketch13.addConstraint(Sketcher.Constraint("Vertical", 1))
sketch13.addConstraint(Sketcher.Constraint("Horizontal", 2))
sketch13.addConstraint(Sketcher.Constraint("DistanceY", 1, 2, 1, 1, Q("8 mm")))
sketch13.addConstraint(Sketcher.Constraint("DistanceY", 0, 2, -1, 1, Q("202 mm")))
sketch13.addConstraint(Sketcher.Constraint("DistanceX", 0, 2, 0, 1, Q("7.95 mm")))
sketch13.addConstraint(Sketcher.Constraint("DistanceX", 2, 1, 2, 2, Q("4.45 mm")))
sketch13.addConstraint(Sketcher.Constraint("DistanceX", -1, 1, 0, 2, Q("62.5 mm")))
pad6 = doc.addObject("PartDesign::Pad", "Pad005")
body.addObject(pad6)
pad6.Profile = sketch13
pad6.Length = 40
pad6.Reversed = True
doc.recompute()

fillet = doc.addObject("PartDesign::Fillet", "Fillet")
body.addObject(fillet)
fillet.Base = (pad6, edges_at(pad6, [
    (9.875, 0, -202),
    (60, 0, -206),
    (15.95, 2.5, -36.574),
    (80, 0, -210),
    (100, 0, -105),
    (92.25, 2.5, -36.574),
    (92.25, 2.5, -138.424),
    (50, 0, 0),
    (0, 0, -99.75),
    (15.95, 2.5, -138.424),
    (0, 23.75, 0),
    (97.5, 14.75, -52.474),
    (97.5, 21.5, -59.974),
    (97.5, 14.75, -67.474),
    (97.5, 8, -59.974),
    (97.5, 10.35, -71.744),
    (97.5, 12.7, -79.894),
    (97.5, 10.35, -88.044),
    (97.5, 8, -79.894),
    (97.5, 16.8, -90.564),
    (97.5, 25.6, -95.564),
    (97.5, 16.8, -100.564),
    (97.5, 8, -95.564),
    (0, 9.28, -130),
    (0, 12.06, -105),
    (0, 6.5, -105),
    (0, 9.28, -80),
    (0, 29.28, -130),
    (0, 32.06, -105),
    (0, 26.5, -105),
    (0, 29.28, -80),
    (0, 20, -199.5),
    (-40.25, 20, -199.5),
    (-40.25, 20, -202),
    (-20.125, 40, -202),
    (0, 40, -200.75),
    (-40.25, 40, -200.75),
    (0, 40.75, -202),
    (0, 47.5, -46),
    (0, 41.5, -147),
    (-1.5, 44.5, -202),
    (0, 44.5, -92),
    (-1.5, 47.5, -92),
    (2.5, 2.5, -101),
    (2.5, 25, -191.5),
    (6.5, 2.5, -10.5),
    (2.5, 25, -10.5),
    (10.5, 2.5, -6.5),
    (50, 2.5, -2.5),
    (10.5, 25, -2.5),
    (89.5, 2.5, -6.5),
    (89.5, 25, -2.5),
    (93.5, 2.5, -10.5),
    (89.5, 25, -10.5),
    (97.5, 2.5, -99.75),
    (97.5, 25, -10.5),
    (92.25, 2.5, -189),
    (97.5, 25, -189),
    (87, 2.5, -194.25),
    (48.75, 2.5, -199.5),
    (10.5, 2.5, -195.5),
    (10.5, 25, -199.5),
    (6.5, 2.5, -191.5),
    (10.5, 25, -191.5),
    (2.5, 47.5, -101),
    (6.5, 47.5, -10.5),
    (10.5, 47.5, -6.5),
    (15.25, 47.5, -2.5),
    (89.5, 47.5, -6.5),
    (93.5, 47.5, -10.5),
    (97.5, 47.5, -99.75),
    (92.25, 47.5, -189),
    (48.75, 47.5, -199.5),
    (10.5, 47.5, -195.5),
    (6.5, 47.5, -191.5),
    (84.75, 47.5, -2.5),
    (50, 7.5, -2.5),
    (80, 27.5, -2.5),
    (20, 27.5, -2.5),
    (-20.125, 0, -199.5),
    (-40.25, 0, -200.75),
]))
fillet.Radius = 1

doc.recompute()
